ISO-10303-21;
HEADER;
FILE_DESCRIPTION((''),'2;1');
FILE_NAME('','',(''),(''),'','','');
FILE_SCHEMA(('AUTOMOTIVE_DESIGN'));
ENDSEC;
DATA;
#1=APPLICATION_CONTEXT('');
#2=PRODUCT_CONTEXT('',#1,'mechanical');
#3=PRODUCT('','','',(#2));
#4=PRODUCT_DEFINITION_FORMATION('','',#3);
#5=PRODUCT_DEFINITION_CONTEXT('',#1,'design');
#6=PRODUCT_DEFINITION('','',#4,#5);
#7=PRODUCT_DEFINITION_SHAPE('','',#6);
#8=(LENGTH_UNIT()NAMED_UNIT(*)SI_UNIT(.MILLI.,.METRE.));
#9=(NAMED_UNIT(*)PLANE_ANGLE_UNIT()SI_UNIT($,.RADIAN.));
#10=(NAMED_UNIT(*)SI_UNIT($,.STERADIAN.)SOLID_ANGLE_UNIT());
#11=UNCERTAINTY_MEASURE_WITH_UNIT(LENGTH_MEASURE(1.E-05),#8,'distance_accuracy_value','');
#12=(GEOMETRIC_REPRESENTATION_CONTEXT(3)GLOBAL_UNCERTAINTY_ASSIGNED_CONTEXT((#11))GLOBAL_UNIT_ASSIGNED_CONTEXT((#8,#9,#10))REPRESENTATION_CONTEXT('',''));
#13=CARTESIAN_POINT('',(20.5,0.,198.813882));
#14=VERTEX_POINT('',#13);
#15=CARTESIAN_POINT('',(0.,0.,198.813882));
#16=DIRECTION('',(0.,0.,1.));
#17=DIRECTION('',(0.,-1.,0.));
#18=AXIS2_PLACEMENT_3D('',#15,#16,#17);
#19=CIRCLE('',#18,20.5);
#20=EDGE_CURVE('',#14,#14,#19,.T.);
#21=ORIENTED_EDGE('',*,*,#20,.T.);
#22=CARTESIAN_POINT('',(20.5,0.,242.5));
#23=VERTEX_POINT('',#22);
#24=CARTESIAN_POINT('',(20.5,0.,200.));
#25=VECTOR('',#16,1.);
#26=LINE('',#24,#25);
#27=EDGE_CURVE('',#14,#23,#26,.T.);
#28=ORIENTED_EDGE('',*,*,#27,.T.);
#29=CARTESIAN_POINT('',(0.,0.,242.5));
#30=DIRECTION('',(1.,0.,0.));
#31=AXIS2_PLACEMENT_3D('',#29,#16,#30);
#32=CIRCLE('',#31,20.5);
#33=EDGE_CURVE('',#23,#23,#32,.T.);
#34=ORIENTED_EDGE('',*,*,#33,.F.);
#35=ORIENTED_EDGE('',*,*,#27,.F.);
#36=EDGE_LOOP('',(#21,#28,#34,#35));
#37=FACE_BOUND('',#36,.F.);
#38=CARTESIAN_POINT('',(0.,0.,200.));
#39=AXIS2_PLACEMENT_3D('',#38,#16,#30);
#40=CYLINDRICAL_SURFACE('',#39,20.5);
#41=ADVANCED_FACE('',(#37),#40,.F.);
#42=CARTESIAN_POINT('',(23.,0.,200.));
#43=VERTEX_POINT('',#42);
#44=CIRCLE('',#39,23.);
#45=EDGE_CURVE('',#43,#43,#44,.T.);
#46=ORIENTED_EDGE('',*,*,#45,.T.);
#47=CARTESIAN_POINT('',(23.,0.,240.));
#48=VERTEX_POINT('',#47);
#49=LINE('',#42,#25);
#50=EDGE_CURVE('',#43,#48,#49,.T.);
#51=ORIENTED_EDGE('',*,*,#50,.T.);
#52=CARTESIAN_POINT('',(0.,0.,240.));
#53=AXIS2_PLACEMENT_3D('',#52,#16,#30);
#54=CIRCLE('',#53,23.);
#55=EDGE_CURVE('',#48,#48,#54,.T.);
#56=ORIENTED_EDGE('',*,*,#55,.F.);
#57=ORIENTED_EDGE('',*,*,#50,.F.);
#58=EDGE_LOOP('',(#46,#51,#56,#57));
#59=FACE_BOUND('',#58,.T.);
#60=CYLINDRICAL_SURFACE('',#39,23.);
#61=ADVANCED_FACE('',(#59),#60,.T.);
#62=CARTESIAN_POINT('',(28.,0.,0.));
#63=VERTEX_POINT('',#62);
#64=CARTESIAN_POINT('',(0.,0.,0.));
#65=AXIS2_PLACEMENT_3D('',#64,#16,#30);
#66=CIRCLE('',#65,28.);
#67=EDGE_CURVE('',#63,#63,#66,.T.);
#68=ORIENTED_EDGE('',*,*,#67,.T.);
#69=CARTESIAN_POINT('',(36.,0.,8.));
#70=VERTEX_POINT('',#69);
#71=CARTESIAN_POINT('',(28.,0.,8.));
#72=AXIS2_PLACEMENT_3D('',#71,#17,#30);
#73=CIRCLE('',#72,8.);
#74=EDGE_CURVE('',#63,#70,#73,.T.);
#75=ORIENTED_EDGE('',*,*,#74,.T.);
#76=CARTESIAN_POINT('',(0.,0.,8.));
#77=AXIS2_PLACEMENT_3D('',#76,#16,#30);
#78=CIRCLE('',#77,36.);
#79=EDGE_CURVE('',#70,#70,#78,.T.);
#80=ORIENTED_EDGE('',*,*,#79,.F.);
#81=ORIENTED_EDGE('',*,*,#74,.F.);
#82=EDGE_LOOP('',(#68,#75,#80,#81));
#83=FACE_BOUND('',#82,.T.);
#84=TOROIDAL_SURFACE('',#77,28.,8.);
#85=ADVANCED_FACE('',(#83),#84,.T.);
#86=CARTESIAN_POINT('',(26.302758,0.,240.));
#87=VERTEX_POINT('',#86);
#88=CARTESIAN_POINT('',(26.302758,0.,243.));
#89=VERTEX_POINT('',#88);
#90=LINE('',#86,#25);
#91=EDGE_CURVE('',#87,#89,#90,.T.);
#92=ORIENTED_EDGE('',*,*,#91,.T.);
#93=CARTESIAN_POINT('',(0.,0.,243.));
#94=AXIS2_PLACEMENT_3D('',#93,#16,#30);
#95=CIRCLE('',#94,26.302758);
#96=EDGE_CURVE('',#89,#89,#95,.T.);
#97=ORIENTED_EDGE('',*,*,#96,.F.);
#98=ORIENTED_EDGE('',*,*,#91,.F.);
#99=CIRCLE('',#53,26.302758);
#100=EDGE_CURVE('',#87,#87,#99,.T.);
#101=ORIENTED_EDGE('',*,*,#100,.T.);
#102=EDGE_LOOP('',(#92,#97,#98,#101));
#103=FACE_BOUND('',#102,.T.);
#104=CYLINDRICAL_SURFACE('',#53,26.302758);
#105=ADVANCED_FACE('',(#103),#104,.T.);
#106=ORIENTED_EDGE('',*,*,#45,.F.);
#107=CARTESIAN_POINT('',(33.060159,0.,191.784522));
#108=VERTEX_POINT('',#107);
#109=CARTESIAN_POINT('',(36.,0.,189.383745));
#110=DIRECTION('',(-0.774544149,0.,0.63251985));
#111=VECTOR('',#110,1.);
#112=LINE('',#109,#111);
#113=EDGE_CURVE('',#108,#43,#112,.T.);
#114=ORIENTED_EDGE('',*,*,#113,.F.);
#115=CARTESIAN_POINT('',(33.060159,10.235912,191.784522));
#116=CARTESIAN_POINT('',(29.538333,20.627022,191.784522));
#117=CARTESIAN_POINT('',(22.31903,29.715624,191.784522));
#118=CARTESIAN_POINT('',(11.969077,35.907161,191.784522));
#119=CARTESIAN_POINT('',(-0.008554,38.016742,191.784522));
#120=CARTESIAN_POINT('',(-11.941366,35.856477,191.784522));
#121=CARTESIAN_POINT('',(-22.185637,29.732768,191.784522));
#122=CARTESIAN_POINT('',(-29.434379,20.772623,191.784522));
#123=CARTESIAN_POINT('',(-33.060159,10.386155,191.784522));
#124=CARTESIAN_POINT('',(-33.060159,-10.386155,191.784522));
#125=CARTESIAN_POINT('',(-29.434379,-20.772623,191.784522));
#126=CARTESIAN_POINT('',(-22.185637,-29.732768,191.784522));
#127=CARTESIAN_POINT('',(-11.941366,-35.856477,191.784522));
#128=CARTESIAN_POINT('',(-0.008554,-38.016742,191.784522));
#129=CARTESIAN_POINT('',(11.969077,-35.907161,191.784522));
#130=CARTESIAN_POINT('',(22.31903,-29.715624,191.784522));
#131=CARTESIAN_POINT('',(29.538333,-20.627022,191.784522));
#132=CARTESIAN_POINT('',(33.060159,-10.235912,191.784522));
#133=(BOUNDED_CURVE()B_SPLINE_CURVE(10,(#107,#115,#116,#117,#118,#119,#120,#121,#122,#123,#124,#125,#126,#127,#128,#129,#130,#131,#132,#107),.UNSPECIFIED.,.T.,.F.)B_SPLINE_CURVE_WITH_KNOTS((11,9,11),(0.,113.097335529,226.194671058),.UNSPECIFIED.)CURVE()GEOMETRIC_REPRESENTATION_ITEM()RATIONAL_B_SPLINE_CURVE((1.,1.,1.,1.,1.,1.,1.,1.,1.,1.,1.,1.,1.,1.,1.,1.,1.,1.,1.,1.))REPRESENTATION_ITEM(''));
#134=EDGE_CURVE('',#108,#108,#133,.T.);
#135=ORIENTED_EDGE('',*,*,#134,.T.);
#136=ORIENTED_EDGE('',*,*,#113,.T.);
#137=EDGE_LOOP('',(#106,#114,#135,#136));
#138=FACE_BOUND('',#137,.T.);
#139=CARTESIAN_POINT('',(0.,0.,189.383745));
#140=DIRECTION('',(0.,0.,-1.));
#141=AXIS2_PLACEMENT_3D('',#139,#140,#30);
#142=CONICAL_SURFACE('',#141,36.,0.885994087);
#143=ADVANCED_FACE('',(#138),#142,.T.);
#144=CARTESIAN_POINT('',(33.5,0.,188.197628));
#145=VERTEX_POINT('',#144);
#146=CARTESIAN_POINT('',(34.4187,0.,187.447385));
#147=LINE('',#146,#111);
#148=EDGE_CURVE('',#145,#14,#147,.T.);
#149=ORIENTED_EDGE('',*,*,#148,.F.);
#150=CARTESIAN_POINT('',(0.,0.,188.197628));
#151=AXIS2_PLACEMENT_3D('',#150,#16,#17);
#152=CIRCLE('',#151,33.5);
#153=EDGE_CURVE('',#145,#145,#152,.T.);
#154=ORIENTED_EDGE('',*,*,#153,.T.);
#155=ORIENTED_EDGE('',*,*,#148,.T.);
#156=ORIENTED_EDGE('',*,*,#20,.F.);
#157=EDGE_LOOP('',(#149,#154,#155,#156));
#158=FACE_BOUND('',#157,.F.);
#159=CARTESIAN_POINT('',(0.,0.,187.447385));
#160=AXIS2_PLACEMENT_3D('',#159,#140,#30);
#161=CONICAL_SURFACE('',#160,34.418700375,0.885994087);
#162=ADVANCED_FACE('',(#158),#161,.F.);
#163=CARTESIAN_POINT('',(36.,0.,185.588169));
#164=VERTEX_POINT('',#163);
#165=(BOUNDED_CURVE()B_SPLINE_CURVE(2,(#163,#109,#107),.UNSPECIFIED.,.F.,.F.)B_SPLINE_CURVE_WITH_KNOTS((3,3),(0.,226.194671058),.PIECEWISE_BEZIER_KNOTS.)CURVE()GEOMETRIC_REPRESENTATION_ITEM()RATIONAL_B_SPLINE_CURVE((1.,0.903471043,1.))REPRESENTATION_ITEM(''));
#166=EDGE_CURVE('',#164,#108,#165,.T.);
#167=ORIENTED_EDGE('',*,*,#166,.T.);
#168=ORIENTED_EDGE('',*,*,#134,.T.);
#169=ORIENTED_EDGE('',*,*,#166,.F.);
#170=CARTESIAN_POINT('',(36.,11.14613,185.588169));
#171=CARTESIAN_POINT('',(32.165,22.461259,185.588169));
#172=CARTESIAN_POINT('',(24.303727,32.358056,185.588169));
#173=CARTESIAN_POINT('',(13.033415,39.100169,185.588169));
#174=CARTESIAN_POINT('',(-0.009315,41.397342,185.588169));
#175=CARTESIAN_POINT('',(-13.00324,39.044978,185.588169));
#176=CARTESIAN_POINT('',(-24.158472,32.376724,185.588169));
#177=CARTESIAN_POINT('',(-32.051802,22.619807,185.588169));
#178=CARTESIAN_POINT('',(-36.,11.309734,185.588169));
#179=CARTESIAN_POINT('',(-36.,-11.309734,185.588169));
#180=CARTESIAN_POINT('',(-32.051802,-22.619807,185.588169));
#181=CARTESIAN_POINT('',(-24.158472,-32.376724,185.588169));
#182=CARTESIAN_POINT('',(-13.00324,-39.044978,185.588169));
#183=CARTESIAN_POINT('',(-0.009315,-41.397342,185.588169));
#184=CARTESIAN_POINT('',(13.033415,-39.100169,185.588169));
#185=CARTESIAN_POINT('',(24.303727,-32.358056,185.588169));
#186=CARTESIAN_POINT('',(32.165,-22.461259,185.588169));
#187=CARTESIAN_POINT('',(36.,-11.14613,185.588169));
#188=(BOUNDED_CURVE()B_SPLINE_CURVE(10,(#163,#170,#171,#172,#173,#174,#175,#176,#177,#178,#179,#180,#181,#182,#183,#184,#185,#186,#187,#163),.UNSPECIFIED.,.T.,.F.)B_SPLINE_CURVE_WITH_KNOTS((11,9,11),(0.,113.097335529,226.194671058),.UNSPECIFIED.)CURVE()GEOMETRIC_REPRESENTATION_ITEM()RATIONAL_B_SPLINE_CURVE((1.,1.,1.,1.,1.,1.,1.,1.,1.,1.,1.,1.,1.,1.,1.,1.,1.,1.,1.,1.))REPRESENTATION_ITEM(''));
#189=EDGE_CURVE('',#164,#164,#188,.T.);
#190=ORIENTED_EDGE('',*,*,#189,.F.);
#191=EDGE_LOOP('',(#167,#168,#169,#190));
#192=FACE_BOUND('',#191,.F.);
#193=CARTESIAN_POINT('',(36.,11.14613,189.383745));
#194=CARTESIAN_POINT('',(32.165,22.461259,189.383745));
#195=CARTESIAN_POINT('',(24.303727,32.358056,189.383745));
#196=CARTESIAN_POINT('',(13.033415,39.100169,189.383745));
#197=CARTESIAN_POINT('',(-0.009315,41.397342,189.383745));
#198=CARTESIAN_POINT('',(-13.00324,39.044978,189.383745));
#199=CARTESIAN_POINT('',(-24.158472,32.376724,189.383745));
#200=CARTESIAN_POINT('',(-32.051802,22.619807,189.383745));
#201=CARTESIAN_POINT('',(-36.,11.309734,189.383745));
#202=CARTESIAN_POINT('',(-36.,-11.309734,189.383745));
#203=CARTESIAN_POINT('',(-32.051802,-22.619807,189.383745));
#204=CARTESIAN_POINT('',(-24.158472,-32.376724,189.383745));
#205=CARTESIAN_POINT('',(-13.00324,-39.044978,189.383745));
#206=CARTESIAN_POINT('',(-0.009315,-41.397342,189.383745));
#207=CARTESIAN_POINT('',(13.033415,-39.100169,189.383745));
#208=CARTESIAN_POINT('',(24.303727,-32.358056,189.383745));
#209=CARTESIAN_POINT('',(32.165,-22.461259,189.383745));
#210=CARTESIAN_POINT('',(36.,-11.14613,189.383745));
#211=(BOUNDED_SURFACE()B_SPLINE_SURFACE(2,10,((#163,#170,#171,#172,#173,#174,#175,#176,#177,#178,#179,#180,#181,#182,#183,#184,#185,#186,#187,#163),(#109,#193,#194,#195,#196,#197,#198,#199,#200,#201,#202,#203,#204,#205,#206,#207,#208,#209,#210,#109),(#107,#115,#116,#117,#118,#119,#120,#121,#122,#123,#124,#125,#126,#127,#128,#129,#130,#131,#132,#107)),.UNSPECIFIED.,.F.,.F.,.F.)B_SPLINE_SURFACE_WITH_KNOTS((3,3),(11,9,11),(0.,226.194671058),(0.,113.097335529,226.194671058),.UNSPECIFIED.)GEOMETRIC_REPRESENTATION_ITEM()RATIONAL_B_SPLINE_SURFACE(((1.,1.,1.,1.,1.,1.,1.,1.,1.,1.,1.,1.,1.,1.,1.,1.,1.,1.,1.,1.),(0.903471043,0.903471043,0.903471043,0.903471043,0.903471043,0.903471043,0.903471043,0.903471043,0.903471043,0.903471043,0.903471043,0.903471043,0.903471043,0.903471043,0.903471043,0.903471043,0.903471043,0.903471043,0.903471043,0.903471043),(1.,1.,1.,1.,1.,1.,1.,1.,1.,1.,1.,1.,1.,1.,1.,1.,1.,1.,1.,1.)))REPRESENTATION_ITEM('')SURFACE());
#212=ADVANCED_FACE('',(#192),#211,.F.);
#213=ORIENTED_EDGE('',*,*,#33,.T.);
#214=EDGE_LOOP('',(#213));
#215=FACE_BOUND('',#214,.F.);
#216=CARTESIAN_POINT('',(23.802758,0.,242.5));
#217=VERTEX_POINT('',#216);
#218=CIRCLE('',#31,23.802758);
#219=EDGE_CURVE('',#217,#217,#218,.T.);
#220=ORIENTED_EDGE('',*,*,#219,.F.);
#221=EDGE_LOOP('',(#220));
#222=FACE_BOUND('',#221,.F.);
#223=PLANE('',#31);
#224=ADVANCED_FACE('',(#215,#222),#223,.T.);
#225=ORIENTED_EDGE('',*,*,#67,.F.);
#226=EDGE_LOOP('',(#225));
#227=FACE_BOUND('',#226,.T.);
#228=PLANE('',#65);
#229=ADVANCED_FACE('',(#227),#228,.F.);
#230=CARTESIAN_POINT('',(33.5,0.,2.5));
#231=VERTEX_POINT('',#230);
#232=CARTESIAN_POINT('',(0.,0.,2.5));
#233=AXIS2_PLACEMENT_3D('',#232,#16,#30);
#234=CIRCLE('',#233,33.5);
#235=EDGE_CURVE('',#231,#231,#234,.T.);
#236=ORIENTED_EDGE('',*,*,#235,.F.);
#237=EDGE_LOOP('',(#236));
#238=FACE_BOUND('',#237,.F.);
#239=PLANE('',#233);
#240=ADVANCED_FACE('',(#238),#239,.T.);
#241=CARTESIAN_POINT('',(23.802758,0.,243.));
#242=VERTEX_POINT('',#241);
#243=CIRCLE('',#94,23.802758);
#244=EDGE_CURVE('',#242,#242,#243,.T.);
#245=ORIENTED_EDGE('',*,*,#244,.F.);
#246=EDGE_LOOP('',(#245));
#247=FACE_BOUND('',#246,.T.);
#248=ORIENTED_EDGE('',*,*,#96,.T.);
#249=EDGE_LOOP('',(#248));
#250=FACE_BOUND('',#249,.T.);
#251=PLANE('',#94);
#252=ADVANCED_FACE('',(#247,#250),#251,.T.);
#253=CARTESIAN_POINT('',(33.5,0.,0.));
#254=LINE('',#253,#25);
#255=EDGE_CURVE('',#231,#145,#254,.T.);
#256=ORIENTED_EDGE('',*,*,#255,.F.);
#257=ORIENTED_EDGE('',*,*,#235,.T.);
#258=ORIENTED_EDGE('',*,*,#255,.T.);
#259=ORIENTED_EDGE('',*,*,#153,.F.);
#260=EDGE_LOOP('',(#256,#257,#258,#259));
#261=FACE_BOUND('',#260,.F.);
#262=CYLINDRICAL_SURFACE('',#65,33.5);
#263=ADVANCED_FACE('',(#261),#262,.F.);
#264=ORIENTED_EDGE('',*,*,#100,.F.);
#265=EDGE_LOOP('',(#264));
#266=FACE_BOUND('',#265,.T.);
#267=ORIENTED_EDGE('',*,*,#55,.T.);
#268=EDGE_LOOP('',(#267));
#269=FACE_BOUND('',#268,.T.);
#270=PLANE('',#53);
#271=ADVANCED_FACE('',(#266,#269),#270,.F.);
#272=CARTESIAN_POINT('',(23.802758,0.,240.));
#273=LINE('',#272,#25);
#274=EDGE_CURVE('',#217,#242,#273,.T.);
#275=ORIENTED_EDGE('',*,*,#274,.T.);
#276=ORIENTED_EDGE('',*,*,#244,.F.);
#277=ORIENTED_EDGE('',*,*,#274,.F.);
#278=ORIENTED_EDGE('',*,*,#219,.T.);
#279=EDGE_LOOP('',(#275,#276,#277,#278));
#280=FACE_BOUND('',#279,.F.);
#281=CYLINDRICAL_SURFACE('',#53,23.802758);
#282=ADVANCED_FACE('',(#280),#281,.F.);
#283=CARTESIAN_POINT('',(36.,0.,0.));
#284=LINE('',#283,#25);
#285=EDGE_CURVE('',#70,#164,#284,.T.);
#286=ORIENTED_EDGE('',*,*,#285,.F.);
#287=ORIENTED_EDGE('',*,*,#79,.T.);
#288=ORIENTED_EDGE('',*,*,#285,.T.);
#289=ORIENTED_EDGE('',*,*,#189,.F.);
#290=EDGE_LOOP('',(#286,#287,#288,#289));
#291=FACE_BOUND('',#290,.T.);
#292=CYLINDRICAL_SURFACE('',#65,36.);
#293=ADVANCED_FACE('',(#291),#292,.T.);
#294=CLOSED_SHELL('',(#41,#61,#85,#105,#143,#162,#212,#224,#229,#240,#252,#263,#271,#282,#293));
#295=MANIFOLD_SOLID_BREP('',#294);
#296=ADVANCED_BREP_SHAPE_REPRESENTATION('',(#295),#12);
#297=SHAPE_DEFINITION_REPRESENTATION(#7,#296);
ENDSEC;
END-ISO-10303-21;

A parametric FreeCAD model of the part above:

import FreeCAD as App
import Part
import Sketcher
from FreeCAD import Vector


def edges_at(feature, points):
    """Names of the edges that pass closest to the given points."""
    edges = feature.Shape.Edges
    near = lambda p: min(range(len(edges)), key=lambda i: edges[i].distToShape(Part.Vertex(*p))[0])
    return sorted({f"Edge{near(p) + 1}" for p in points})


def faces_at(feature, points):
    """Names of the faces that lie closest to the given points."""
    faces = feature.Shape.Faces
    near = lambda p: min(range(len(faces)), key=lambda i: faces[i].distToShape(Part.Vertex(*p))[0])
    return sorted({f"Face{near(p) + 1}" for p in points})


def add_polygon(sketch, points):
    """Adds a closed chain of lines whose ends are joined by coincident constraints."""
    first, n = sketch.GeometryCount, len(points)
    for a, b in zip(points, points[1:] + points[:1]):
        sketch.addGeometry(Part.LineSegment(App.Vector(*a, 0), App.Vector(*b, 0)), False)
    for i in range(n):
        sketch.addConstraint(Sketcher.Constraint("Coincident", first + i, 2, first + (i + 1) % n, 1))

doc = App.newDocument("Part")
params = doc.addObject("Spreadsheet::Sheet", "Params")
for row, (alias, value) in enumerate([
    ("sketch1_width", "36 mm"),
    ("sketch1_height", "243 mm"),
    ("sketch1_height2", "40 mm"),
    ("sketch1_height3", "3 mm"),
    ("revolution_angle", "360 deg"),
    ("thickness_wall", "2.5 mm"),
    ("fillet_radius", "8 mm"),
], start=1):
    params.set(f"A{row}", alias)
    params.set(f"B{row}", "=" + value)
    params.setAlias(f"B{row}", alias)

body = doc.addObject("PartDesign::Body", "Body")

sketch1 = body.newObject("Sketcher::SketchObject", "Sketch")
sketch1.AttachmentSupport = (doc.getObject("XZ_Plane"), [""])
sketch1.MapMode = "FlatFace"
add_polygon(sketch1, [(0, 243), (0, 0), (36, 0), (36, 189.383745), (23, 200), (23, 240), (26.302758, 240), (26.302758, 243)])
sketch1.addConstraint(Sketcher.Constraint("Vertical", 0))
sketch1.addConstraint(Sketcher.Constraint("Horizontal", 1))
sketch1.addConstraint(Sketcher.Constraint("Vertical", 2))
sketch1.addConstraint(Sketcher.Constraint("Vertical", 4))
sketch1.addConstraint(Sketcher.Constraint("Horizontal", 5))
sketch1.addConstraint(Sketcher.Constraint("Vertical", 6))
sketch1.addConstraint(Sketcher.Constraint("Horizontal", 7))
sketch1.addConstraint(Sketcher.Constraint("Coincident", 0, 2, -1, 1))
sketch1.addConstraint(Sketcher.Constraint("DistanceX", 1, 1, 1, 2, 36.0))
sketch1.addConstraint(Sketcher.Constraint("DistanceY", 0, 2, 0, 1, 243.0))
sketch1.addConstraint(Sketcher.Constraint("DistanceY", 4, 1, 4, 2, 40.0))
sketch1.addConstraint(Sketcher.Constraint("DistanceY", 6, 1, 6, 2, 3.0))
sketch1.addConstraint(Sketcher.Constraint("DistanceX", -1, 1, 3, 2, 23.0))
sketch1.addConstraint(Sketcher.Constraint("DistanceX", 5, 1, 5, 2, 3.302758))
sketch1.addConstraint(Sketcher.Constraint("DistanceY", 2, 1, 2, 2, 189.383745))
sketch1.setExpression("Constraints[16]", "Params.sketch1_width")
sketch1.setExpression("Constraints[17]", "Params.sketch1_height")
sketch1.setExpression("Constraints[18]", "Params.sketch1_height2")
sketch1.setExpression("Constraints[19]", "Params.sketch1_height3")
revolution = body.newObject("PartDesign::Revolution", "Revolution")
revolution.Profile = sketch1
revolution.ReferenceAxis = (sketch1, ["V_Axis"])
revolution.setExpression("Angle", "Params.revolution_angle")
doc.recompute()

thickness = body.newObject("PartDesign::Thickness", "Thickness")
thickness.Base = (revolution, faces_at(revolution, [(0, 0, 243)]))
thickness.setExpression("Value", "Params.thickness_wall")
thickness.Reversed = True
thickness.Join = "Intersection"
doc.recompute()

fillet = body.newObject("PartDesign::Fillet", "Fillet")
fillet.Base = (thickness, edges_at(thickness, [(-36, 0, 0), (-36, 0, 189.384)]))
fillet.setExpression("Radius", "Params.fillet_radius")

doc.recompute()
